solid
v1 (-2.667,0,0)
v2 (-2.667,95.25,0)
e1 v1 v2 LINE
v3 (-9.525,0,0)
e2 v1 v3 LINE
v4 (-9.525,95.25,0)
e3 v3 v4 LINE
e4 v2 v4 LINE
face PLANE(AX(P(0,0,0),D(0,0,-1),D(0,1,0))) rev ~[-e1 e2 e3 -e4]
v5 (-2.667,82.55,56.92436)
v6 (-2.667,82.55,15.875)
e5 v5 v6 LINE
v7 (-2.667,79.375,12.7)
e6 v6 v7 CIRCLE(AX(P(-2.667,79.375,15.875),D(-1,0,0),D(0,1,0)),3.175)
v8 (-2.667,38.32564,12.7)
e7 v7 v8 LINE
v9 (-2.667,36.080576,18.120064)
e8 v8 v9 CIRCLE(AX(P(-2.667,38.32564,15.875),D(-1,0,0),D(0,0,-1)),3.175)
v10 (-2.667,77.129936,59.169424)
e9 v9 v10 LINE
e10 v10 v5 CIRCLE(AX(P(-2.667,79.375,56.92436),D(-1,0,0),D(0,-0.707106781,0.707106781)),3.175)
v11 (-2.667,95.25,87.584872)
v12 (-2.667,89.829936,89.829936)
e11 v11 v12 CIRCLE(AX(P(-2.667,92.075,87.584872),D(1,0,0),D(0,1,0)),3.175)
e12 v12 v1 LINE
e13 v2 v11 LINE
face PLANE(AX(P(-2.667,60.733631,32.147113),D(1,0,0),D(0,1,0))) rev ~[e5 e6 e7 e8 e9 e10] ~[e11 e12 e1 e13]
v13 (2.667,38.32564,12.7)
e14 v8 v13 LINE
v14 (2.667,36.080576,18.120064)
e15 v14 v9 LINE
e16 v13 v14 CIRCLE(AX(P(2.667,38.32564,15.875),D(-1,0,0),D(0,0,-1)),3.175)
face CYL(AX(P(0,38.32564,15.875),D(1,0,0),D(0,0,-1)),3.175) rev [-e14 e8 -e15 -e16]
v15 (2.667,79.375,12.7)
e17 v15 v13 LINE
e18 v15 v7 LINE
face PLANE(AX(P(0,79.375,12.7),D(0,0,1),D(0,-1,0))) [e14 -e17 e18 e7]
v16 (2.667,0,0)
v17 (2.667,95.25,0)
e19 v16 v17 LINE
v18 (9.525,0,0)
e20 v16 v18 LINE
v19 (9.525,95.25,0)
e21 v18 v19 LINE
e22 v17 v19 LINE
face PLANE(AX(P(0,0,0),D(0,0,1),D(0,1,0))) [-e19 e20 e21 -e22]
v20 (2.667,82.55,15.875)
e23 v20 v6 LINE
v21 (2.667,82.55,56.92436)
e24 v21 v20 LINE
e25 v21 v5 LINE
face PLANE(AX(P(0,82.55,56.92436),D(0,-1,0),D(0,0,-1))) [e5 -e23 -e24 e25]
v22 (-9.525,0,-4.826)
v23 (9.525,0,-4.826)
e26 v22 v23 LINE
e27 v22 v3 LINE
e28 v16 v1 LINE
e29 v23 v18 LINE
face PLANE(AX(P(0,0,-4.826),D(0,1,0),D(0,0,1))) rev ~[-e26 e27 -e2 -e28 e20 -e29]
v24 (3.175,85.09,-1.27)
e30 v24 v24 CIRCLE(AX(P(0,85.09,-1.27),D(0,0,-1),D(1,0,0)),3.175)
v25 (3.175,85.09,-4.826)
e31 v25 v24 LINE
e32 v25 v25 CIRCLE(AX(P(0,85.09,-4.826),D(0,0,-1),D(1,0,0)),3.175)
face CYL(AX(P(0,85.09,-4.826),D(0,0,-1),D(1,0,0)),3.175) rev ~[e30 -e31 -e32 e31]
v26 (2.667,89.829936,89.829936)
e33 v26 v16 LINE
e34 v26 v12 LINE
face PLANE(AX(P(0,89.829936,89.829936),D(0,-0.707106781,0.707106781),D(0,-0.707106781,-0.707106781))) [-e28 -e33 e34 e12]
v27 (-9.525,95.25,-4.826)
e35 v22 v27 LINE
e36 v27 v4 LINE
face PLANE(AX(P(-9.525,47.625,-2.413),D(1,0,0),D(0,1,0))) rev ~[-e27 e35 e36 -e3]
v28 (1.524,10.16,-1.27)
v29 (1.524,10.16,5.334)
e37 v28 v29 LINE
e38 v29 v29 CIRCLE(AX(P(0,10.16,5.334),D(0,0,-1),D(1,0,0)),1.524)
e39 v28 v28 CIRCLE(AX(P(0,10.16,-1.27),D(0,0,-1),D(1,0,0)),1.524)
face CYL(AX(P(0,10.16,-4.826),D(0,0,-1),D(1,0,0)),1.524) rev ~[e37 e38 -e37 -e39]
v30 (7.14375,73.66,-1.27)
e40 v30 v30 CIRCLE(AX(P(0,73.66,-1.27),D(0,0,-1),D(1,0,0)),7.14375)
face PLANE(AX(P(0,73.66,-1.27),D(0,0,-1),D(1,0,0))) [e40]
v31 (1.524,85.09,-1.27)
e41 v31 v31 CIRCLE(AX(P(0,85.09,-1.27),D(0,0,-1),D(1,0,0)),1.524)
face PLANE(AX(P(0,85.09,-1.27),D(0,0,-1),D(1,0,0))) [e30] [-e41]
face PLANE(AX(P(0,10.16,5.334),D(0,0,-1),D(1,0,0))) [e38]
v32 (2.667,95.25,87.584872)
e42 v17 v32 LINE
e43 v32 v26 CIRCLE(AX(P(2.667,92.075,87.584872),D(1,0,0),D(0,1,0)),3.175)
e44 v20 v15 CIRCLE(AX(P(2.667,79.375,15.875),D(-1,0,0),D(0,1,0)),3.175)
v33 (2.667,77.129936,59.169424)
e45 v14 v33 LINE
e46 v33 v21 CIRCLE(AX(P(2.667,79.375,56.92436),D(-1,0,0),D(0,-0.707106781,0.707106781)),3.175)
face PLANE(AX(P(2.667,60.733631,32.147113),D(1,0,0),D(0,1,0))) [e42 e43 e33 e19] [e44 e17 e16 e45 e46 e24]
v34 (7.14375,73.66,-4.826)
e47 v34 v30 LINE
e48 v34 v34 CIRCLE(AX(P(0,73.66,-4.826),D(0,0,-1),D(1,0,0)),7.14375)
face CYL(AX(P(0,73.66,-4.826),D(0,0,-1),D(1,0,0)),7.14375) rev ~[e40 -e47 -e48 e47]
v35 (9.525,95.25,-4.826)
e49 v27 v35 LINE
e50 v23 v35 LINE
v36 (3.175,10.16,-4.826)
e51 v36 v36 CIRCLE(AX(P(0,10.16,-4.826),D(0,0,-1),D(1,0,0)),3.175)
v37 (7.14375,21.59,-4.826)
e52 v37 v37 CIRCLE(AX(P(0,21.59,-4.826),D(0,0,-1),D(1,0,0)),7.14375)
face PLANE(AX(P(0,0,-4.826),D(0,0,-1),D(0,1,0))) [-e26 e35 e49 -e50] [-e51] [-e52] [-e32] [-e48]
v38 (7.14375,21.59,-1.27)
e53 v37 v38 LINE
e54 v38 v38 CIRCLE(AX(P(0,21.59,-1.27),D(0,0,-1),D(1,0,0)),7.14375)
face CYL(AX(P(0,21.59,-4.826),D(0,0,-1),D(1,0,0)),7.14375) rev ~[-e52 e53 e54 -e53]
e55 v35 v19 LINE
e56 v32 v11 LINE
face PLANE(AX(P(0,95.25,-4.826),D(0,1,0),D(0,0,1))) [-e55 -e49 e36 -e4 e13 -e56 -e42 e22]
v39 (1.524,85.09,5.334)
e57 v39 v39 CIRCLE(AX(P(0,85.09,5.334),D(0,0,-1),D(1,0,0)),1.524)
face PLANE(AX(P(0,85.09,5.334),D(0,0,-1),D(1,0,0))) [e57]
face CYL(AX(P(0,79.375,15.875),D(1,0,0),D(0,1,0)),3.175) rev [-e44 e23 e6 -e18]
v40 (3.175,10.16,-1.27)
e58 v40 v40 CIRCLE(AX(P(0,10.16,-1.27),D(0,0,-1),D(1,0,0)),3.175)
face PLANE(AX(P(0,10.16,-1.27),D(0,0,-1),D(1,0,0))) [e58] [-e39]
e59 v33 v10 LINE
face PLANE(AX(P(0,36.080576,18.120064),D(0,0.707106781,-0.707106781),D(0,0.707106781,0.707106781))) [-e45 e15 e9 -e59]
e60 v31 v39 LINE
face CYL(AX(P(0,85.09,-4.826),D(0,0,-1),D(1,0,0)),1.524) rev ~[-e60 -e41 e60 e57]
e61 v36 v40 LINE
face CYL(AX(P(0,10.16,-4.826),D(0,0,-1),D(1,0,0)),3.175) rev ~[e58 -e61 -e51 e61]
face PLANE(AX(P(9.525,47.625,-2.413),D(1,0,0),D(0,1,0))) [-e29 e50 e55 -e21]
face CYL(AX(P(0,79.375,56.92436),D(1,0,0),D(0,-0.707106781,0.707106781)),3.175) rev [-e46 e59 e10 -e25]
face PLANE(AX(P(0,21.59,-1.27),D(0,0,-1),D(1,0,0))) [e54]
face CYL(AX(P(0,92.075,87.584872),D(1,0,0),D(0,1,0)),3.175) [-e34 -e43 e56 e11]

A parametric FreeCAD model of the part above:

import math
import FreeCAD as App
import Part
import Sketcher
Q = App.Units.Quantity

doc = App.newDocument("Part")
body = doc.addObject("PartDesign::Body", "Body")

# Sketch on YZ plane
sketch1 = doc.addObject("Sketcher::SketchObject", "Sketch")
body.addObject(sketch1)
sketch1.AttachmentSupport = (doc.YZ_Plane, [""])
sketch1.MapMode = "FlatFace"
sketch1.addGeometry(Part.LineSegment(App.Vector(89.8, 89.8, 0), App.Vector(0, 0, 0)), False)
sketch1.addGeometry(Part.LineSegment(App.Vector(0, 0, 0), App.Vector(95.2, 0, 0)), False)
sketch1.addGeometry(Part.LineSegment(App.Vector(95.2, 0, 0), App.Vector(95.2, 87.6, 0)), False)
sketch1.addGeometry(Part.ArcOfCircle(Part.Circle(App.Vector(92.1, 87.6, 0), App.Vector(0, 0, 1), 3.2), math.radians(0), math.radians(135)), False)
sketch1.addGeometry(Part.LineSegment(App.Vector(79.4, 12.7, 0), App.Vector(38.3, 12.7, 0)), False)
sketch1.addGeometry(Part.ArcOfCircle(Part.Circle(App.Vector(38.3, 15.9, 0), App.Vector(0, 0, 1), 3.2), math.radians(135), math.radians(270)), False)
sketch1.addGeometry(Part.LineSegment(App.Vector(36.1, 18.1, 0), App.Vector(77.1, 59.2, 0)), False)
sketch1.addGeometry(Part.ArcOfCircle(Part.Circle(App.Vector(79.4, 56.9, 0), App.Vector(0, 0, 1), 3.2), math.radians(0), math.radians(135)), False)
sketch1.addGeometry(Part.LineSegment(App.Vector(82.5, 56.9, 0), App.Vector(82.5, 15.9, 0)), False)
sketch1.addGeometry(Part.ArcOfCircle(Part.Circle(App.Vector(79.4, 15.9, 0), App.Vector(0, 0, 1), 3.2), math.radians(-90), math.radians(0)), False)
sketch1.addConstraint(Sketcher.Constraint("Coincident", 0, 2, 1, 1))
sketch1.addConstraint(Sketcher.Constraint("Coincident", 1, 2, 2, 1))
sketch1.addConstraint(Sketcher.Constraint("Tangent", 2, 2, 3, 1))
sketch1.addConstraint(Sketcher.Constraint("Tangent", 3, 2, 0, 1))
sketch1.addConstraint(Sketcher.Constraint("Tangent", 4, 2, 5, 2))
sketch1.addConstraint(Sketcher.Constraint("Tangent", 5, 1, 6, 1))
sketch1.addConstraint(Sketcher.Constraint("Tangent", 6, 2, 7, 2))
sketch1.addConstraint(Sketcher.Constraint("Tangent", 7, 1, 8, 1))
sketch1.addConstraint(Sketcher.Constraint("Tangent", 8, 2, 9, 2))
sketch1.addConstraint(Sketcher.Constraint("Tangent", 9, 1, 4, 1))
sketch1.addConstraint(Sketcher.Constraint("Horizontal", 1))
sketch1.addConstraint(Sketcher.Constraint("Vertical", 2))
sketch1.addConstraint(Sketcher.Constraint("Horizontal", 4))
sketch1.addConstraint(Sketcher.Constraint("Vertical", 8))
sketch1.addConstraint(Sketcher.Constraint("Coincident", 0, 2, -1, 1))
sketch1.addConstraint(Sketcher.Constraint("Equal", 3, 5))
sketch1.addConstraint(Sketcher.Constraint("Equal", 5, 7))
sketch1.addConstraint(Sketcher.Constraint("Equal", 7, 9))
sketch1.addConstraint(Sketcher.Constraint("Parallel", 0, 6))
sketch1.addConstraint(Sketcher.Constraint("Equal", 4, 8))
sketch1.addConstraint(Sketcher.Constraint("Radius", 3, Q("0.125 in")))
sketch1.addConstraint(Sketcher.Constraint("DistanceX", 1, 1, 1, 2, Q("3.75 in")))
sketch1.addConstraint(Sketcher.Constraint("DistanceY", -1, 1, 4, 2, Q("0.5 in")))
sketch1.addConstraint(Sketcher.Constraint("DistanceX", 7, 3, 3, 3, Q("0.5 in")))
sketch1.addConstraint(Sketcher.Constraint("DistanceX", 4, 2, 4, 1, Q("41.04936 mm")))
pad1 = doc.addObject("PartDesign::Pad", "Pad")
body.addObject(pad1)
pad1.Profile = sketch1
pad1.Type = "TwoLengths"
pad1.Length = Q("0.105 in")
pad1.Length2 = Q("0.105 in")

# Sketch on YZ plane
sketch2 = doc.addObject("Sketcher::SketchObject", "Sketch001")
body.addObject(sketch2)
sketch2.AttachmentSupport = (doc.YZ_Plane, [""])
sketch2.MapMode = "FlatFace"
sketch2.addGeometry(Part.LineSegment(App.Vector(0, 0, 0), App.Vector(0, -4.8, 0)), False)
sketch2.addGeometry(Part.LineSegment(App.Vector(0, -4.8, 0), App.Vector(95.2, -4.8, 0)), False)
sketch2.addGeometry(Part.LineSegment(App.Vector(95.2, -4.8, 0), App.Vector(95.2, 0, 0)), False)
sketch2.addGeometry(Part.LineSegment(App.Vector(95.2, 0, 0), App.Vector(0, 0, 0)), False)
sketch2.addConstraint(Sketcher.Constraint("Coincident", 0, 2, 1, 1))
sketch2.addConstraint(Sketcher.Constraint("Coincident", 1, 2, 2, 1))
sketch2.addConstraint(Sketcher.Constraint("Coincident", 2, 2, 3, 1))
sketch2.addConstraint(Sketcher.Constraint("Coincident", 3, 2, 0, 1))
sketch2.addConstraint(Sketcher.Constraint("Vertical", 0))
sketch2.addConstraint(Sketcher.Constraint("Horizontal", 1))
sketch2.addConstraint(Sketcher.Constraint("Vertical", 2))
sketch2.addConstraint(Sketcher.Constraint("Horizontal", 3))
sketch2.addConstraint(Sketcher.Constraint("Coincident", 3, 2, -1, 1))
sketch2.addConstraint(Sketcher.Constraint("DistanceX", 1, 1, 1, 2, Q("3.75 in")))
sketch2.addConstraint(Sketcher.Constraint("DistanceY", 0, 2, 0, 1, Q("0.19 in")))
pad2 = doc.addObject("PartDesign::Pad", "Pad001")
body.addObject(pad2)
pad2.Profile = sketch2
pad2.Type = "TwoLengths"
pad2.Length = Q("0.375 in")
pad2.Length2 = Q("0.375 in")

# Sketch on XY plane
sketch3 = doc.addObject("Sketcher::SketchObject", "Sketch002")
body.addObject(sketch3)
sketch3.AttachmentSupport = (doc.XY_Plane, [""])
sketch3.MapMode = "FlatFace"
sketch3.AttachmentOffset = App.Placement(App.Vector(0, 0, -0.19 * 25.4), App.Rotation())
sketch3.addGeometry(Part.Circle(App.Vector(0, 85.1, 0), App.Vector(0, 0, 1), 3.2), False)
sketch3.addGeometry(Part.Circle(App.Vector(0, 10.2, 0), App.Vector(0, 0, 1), 3.2), False)
sketch3.addGeometry(Part.Circle(App.Vector(0, 73.7, 0), App.Vector(0, 0, 1), 7.1), False)
sketch3.addGeometry(Part.Circle(App.Vector(0, 21.6, 0), App.Vector(0, 0, 1), 7.1), False)
sketch3.addConstraint(Sketcher.Constraint("Equal", 0, 1))
sketch3.addConstraint(Sketcher.Constraint("Equal", 2, 3))
sketch3.addConstraint(Sketcher.Constraint("PointOnObject", 0, 3, -2))
sketch3.addConstraint(Sketcher.Constraint("PointOnObject", 1, 3, -2))
sketch3.addConstraint(Sketcher.Constraint("PointOnObject", 2, 3, -2))
sketch3.addConstraint(Sketcher.Constraint("PointOnObject", 3, 3, -2))
sketch3.addConstraint(Sketcher.Constraint("Diameter", 0, Q("0.25 in")))
sketch3.addConstraint(Sketcher.Constraint("Diameter", 2, Q("0.5625 in")))
sketch3.addConstraint(Sketcher.Constraint("DistanceY", -1, 1, 1, 3, Q("0.4 in")))
sketch3.addConstraint(Sketcher.Constraint("DistanceY", -1, 1, 2, 3, Q("2.9 in")))
sketch3.addConstraint(Sketcher.Constraint("DistanceY", 3, 3, 0, 3, Q("2.5 in")))
sketch3.addConstraint(Sketcher.Constraint("DistanceY", -1, 1, 0, 3, Q("3.35 in")))
pocket1 = doc.addObject("PartDesign::Pocket", "Pocket")
body.addObject(pocket1)
pocket1.Profile = sketch3
pocket1.Length = Q("0.14 in")
pocket1.Reversed = True

# Sketch on XY plane
sketch4 = doc.addObject("Sketcher::SketchObject", "Sketch003")
body.addObject(sketch4)
sketch4.AttachmentSupport = (doc.XY_Plane, [""])
sketch4.MapMode = "FlatFace"
sketch4.AttachmentOffset = App.Placement(App.Vector(0, 0, -0.19 * 25.4), App.Rotation())
sketch4.addGeometry(Part.Circle(App.Vector(0, 85.1, 0), App.Vector(0, 0, 1), 1.5), False)
sketch4.addGeometry(Part.Circle(App.Vector(0, 10.2, 0), App.Vector(0, 0, 1), 1.5), False)
sketch4.addConstraint(Sketcher.Constraint("Equal", 0, 1))
sketch4.addConstraint(Sketcher.Constraint("PointOnObject", 0, 3, -2))
sketch4.addConstraint(Sketcher.Constraint("PointOnObject", 1, 3, -2))
sketch4.addConstraint(Sketcher.Constraint("Diameter", 0, Q("0.12 in")))
sketch4.addConstraint(Sketcher.Constraint("DistanceY", -1, 1, 1, 3, Q("0.4 in")))
sketch4.addConstraint(Sketcher.Constraint("DistanceY", -1, 1, 0, 3, Q("3.35 in")))
pocket2 = doc.addObject("PartDesign::Pocket", "Pocket001")
body.addObject(pocket2)
pocket2.Profile = sketch4
pocket2.Length = Q("0.4 in")
pocket2.Reversed = True

doc.recompute()
